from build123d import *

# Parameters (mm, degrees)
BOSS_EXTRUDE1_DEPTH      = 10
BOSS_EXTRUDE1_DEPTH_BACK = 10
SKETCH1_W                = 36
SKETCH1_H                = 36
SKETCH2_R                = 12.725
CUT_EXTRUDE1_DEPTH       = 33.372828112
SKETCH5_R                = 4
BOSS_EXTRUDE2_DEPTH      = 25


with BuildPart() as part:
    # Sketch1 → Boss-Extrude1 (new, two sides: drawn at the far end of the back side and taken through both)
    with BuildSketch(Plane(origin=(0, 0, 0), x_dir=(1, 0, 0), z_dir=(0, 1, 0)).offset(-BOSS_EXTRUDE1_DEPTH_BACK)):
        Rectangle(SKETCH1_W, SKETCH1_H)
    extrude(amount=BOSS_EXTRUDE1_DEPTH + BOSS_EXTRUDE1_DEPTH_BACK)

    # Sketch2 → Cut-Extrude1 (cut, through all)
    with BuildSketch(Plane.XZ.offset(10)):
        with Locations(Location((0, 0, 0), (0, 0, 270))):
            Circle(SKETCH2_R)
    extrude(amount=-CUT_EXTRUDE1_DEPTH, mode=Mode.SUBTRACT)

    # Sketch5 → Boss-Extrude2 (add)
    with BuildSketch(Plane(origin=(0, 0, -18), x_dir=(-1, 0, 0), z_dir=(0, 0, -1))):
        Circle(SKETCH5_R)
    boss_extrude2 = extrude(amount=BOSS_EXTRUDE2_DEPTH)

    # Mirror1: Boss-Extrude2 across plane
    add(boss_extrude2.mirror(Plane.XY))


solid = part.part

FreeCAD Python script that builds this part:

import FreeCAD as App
import Part
import Sketcher

V = App.Vector

doc = App.newDocument("Part")
body = doc.addObject("PartDesign::Body", "Body")

sketch1 = body.newObject("Sketcher::SketchObject", "Sketch")
sketch1.AttachmentSupport = (doc.getObject("XZ_Plane"), [""])
sketch1.MapMode = "FlatFace"
sketch1.addGeometry(Part.LineSegment(V(-18, -18, 0), V(-18, 18, 0)), False)
sketch1.addGeometry(Part.LineSegment(V(-18, 18, 0), V(18, 18, 0)), False)
sketch1.addGeometry(Part.LineSegment(V(18, 18, 0), V(18, -18, 0)), False)
sketch1.addGeometry(Part.LineSegment(V(18, -18, 0), V(-18, -18, 0)), False)
sketch1.addConstraint(Sketcher.Constraint("Coincident", 0, 2, 1, 1))
sketch1.addConstraint(Sketcher.Constraint("Coincident", 1, 2, 2, 1))
sketch1.addConstraint(Sketcher.Constraint("Coincident", 2, 2, 3, 1))
sketch1.addConstraint(Sketcher.Constraint("Coincident", 3, 2, 0, 1))
sketch1.addConstraint(Sketcher.Constraint("Vertical", 0))
sketch1.addConstraint(Sketcher.Constraint("Horizontal", 1))
sketch1.addConstraint(Sketcher.Constraint("Vertical", 2))
sketch1.addConstraint(Sketcher.Constraint("Horizontal", 3))
sketch1.addConstraint(Sketcher.Constraint("Symmetric", 0, 2, 2, 2, -1, 1))
sketch1.addConstraint(Sketcher.Constraint("Equal", 3, 0))
sketch1.addConstraint(Sketcher.Constraint("DistanceX", 1, 1, 1, 2, 36.0))
pad1 = body.newObject("PartDesign::Pad", "Pad")
pad1.Profile = sketch1
pad1.Type = "TwoLengths"
pad1.Length = 10
pad1.Length2 = 10
pad1.Reversed = True

sketch2 = body.newObject("Sketcher::SketchObject", "Sketch001")
sketch2.AttachmentSupport = (doc.getObject("XZ_Plane"), [""])
sketch2.MapMode = "FlatFace"
sketch2.AttachmentOffset = App.Placement(V(0, 0, 10), App.Rotation())
sketch2.addGeometry(Part.Circle(V(0, 0, 0), V(0, 0, 1), 13), False)
sketch2.addConstraint(Sketcher.Constraint("Coincident", 0, 3, -1, 1))
sketch2.addConstraint(Sketcher.Constraint("Diameter", 0, 25.45))
pocket1 = body.newObject("PartDesign::Pocket", "Pocket")
pocket1.Profile = sketch2
pocket1.Type = "ThroughAll"

sketch3 = body.newObject("Sketcher::SketchObject", "Sketch002")
sketch3.AttachmentSupport = (doc.getObject("XY_Plane"), [""])
sketch3.MapMode = "FlatFace"
sketch3.AttachmentOffset = App.Placement(V(0, 0, -18), App.Rotation())
sketch3.addGeometry(Part.Circle(V(0, 0, 0), V(0, 0, 1), 4), False)
sketch3.addConstraint(Sketcher.Constraint("Coincident", 0, 3, -1, 1))
sketch3.addConstraint(Sketcher.Constraint("Diameter", 0, 8.0))
pad2 = body.newObject("PartDesign::Pad", "Pad001")
pad2.Profile = sketch3
pad2.Length = 25
pad2.Reversed = True
doc.recompute()

mirrored = body.newObject("PartDesign::Mirrored", "Mirrored")
mirrored.Originals = [pad2]
mirrored.MirrorPlane = (doc.getObject("XY_Plane"), [""])
body.Tip = mirrored

doc.recompute()
